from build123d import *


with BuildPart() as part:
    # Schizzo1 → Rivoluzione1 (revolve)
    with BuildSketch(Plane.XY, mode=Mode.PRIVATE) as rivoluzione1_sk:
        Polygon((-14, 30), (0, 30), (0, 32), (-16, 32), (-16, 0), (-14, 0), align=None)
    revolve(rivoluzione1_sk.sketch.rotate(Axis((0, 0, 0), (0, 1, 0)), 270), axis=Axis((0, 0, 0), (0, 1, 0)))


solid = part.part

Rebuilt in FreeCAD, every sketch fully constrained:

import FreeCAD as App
import Part
import Sketcher


def add_polygon(sketch, points):
    """Adds a closed chain of lines whose ends are joined by coincident constraints."""
    first, n = sketch.GeometryCount, len(points)
    for a, b in zip(points, points[1:] + points[:1]):
        sketch.addGeometry(Part.LineSegment(App.Vector(*a, 0), App.Vector(*b, 0)), False)
    for i in range(n):
        sketch.addConstraint(Sketcher.Constraint("Coincident", first + i, 2, first + (i + 1) % n, 1))

doc = App.newDocument("Part")
body = doc.addObject("PartDesign::Body", "Body")

# Sketch on XY plane
sketch1 = body.newObject("Sketcher::SketchObject", "Sketch")
sketch1.AttachmentSupport = (doc.getObject("XY_Plane"), [""])
sketch1.MapMode = "FlatFace"
add_polygon(sketch1, [(-14, 30), (0, 30), (0, 32), (-16, 32), (-16, 0), (-14, 0)])  # lines 0-5
sketch1.addConstraint(Sketcher.Constraint("Horizontal", 0))
sketch1.addConstraint(Sketcher.Constraint("Vertical", 1))
sketch1.addConstraint(Sketcher.Constraint("Horizontal", 2))
sketch1.addConstraint(Sketcher.Constraint("Vertical", 3))
sketch1.addConstraint(Sketcher.Constraint("Horizontal", 4))
sketch1.addConstraint(Sketcher.Constraint("Vertical", 5))
sketch1.addConstraint(Sketcher.Constraint("PointOnObject", 0, 2, -2))
sketch1.addConstraint(Sketcher.Constraint("PointOnObject", 3, 2, -1))
sketch1.addConstraint(Sketcher.Constraint("Equal", 4, 1))
sketch1.addConstraint(Sketcher.Constraint("DistanceX", 0, 1, 0, 2, 14.0))
sketch1.addConstraint(Sketcher.Constraint("DistanceX", 2, 2, 2, 1, 16.0))
sketch1.addConstraint(Sketcher.Constraint("DistanceY", 3, 2, 3, 1, 32.0))
revolution = body.newObject("PartDesign::Revolution", "Revolution")
revolution.Profile = sketch1
revolution.ReferenceAxis = (sketch1, ["V_Axis"])
revolution.Angle = 360

doc.recompute()
